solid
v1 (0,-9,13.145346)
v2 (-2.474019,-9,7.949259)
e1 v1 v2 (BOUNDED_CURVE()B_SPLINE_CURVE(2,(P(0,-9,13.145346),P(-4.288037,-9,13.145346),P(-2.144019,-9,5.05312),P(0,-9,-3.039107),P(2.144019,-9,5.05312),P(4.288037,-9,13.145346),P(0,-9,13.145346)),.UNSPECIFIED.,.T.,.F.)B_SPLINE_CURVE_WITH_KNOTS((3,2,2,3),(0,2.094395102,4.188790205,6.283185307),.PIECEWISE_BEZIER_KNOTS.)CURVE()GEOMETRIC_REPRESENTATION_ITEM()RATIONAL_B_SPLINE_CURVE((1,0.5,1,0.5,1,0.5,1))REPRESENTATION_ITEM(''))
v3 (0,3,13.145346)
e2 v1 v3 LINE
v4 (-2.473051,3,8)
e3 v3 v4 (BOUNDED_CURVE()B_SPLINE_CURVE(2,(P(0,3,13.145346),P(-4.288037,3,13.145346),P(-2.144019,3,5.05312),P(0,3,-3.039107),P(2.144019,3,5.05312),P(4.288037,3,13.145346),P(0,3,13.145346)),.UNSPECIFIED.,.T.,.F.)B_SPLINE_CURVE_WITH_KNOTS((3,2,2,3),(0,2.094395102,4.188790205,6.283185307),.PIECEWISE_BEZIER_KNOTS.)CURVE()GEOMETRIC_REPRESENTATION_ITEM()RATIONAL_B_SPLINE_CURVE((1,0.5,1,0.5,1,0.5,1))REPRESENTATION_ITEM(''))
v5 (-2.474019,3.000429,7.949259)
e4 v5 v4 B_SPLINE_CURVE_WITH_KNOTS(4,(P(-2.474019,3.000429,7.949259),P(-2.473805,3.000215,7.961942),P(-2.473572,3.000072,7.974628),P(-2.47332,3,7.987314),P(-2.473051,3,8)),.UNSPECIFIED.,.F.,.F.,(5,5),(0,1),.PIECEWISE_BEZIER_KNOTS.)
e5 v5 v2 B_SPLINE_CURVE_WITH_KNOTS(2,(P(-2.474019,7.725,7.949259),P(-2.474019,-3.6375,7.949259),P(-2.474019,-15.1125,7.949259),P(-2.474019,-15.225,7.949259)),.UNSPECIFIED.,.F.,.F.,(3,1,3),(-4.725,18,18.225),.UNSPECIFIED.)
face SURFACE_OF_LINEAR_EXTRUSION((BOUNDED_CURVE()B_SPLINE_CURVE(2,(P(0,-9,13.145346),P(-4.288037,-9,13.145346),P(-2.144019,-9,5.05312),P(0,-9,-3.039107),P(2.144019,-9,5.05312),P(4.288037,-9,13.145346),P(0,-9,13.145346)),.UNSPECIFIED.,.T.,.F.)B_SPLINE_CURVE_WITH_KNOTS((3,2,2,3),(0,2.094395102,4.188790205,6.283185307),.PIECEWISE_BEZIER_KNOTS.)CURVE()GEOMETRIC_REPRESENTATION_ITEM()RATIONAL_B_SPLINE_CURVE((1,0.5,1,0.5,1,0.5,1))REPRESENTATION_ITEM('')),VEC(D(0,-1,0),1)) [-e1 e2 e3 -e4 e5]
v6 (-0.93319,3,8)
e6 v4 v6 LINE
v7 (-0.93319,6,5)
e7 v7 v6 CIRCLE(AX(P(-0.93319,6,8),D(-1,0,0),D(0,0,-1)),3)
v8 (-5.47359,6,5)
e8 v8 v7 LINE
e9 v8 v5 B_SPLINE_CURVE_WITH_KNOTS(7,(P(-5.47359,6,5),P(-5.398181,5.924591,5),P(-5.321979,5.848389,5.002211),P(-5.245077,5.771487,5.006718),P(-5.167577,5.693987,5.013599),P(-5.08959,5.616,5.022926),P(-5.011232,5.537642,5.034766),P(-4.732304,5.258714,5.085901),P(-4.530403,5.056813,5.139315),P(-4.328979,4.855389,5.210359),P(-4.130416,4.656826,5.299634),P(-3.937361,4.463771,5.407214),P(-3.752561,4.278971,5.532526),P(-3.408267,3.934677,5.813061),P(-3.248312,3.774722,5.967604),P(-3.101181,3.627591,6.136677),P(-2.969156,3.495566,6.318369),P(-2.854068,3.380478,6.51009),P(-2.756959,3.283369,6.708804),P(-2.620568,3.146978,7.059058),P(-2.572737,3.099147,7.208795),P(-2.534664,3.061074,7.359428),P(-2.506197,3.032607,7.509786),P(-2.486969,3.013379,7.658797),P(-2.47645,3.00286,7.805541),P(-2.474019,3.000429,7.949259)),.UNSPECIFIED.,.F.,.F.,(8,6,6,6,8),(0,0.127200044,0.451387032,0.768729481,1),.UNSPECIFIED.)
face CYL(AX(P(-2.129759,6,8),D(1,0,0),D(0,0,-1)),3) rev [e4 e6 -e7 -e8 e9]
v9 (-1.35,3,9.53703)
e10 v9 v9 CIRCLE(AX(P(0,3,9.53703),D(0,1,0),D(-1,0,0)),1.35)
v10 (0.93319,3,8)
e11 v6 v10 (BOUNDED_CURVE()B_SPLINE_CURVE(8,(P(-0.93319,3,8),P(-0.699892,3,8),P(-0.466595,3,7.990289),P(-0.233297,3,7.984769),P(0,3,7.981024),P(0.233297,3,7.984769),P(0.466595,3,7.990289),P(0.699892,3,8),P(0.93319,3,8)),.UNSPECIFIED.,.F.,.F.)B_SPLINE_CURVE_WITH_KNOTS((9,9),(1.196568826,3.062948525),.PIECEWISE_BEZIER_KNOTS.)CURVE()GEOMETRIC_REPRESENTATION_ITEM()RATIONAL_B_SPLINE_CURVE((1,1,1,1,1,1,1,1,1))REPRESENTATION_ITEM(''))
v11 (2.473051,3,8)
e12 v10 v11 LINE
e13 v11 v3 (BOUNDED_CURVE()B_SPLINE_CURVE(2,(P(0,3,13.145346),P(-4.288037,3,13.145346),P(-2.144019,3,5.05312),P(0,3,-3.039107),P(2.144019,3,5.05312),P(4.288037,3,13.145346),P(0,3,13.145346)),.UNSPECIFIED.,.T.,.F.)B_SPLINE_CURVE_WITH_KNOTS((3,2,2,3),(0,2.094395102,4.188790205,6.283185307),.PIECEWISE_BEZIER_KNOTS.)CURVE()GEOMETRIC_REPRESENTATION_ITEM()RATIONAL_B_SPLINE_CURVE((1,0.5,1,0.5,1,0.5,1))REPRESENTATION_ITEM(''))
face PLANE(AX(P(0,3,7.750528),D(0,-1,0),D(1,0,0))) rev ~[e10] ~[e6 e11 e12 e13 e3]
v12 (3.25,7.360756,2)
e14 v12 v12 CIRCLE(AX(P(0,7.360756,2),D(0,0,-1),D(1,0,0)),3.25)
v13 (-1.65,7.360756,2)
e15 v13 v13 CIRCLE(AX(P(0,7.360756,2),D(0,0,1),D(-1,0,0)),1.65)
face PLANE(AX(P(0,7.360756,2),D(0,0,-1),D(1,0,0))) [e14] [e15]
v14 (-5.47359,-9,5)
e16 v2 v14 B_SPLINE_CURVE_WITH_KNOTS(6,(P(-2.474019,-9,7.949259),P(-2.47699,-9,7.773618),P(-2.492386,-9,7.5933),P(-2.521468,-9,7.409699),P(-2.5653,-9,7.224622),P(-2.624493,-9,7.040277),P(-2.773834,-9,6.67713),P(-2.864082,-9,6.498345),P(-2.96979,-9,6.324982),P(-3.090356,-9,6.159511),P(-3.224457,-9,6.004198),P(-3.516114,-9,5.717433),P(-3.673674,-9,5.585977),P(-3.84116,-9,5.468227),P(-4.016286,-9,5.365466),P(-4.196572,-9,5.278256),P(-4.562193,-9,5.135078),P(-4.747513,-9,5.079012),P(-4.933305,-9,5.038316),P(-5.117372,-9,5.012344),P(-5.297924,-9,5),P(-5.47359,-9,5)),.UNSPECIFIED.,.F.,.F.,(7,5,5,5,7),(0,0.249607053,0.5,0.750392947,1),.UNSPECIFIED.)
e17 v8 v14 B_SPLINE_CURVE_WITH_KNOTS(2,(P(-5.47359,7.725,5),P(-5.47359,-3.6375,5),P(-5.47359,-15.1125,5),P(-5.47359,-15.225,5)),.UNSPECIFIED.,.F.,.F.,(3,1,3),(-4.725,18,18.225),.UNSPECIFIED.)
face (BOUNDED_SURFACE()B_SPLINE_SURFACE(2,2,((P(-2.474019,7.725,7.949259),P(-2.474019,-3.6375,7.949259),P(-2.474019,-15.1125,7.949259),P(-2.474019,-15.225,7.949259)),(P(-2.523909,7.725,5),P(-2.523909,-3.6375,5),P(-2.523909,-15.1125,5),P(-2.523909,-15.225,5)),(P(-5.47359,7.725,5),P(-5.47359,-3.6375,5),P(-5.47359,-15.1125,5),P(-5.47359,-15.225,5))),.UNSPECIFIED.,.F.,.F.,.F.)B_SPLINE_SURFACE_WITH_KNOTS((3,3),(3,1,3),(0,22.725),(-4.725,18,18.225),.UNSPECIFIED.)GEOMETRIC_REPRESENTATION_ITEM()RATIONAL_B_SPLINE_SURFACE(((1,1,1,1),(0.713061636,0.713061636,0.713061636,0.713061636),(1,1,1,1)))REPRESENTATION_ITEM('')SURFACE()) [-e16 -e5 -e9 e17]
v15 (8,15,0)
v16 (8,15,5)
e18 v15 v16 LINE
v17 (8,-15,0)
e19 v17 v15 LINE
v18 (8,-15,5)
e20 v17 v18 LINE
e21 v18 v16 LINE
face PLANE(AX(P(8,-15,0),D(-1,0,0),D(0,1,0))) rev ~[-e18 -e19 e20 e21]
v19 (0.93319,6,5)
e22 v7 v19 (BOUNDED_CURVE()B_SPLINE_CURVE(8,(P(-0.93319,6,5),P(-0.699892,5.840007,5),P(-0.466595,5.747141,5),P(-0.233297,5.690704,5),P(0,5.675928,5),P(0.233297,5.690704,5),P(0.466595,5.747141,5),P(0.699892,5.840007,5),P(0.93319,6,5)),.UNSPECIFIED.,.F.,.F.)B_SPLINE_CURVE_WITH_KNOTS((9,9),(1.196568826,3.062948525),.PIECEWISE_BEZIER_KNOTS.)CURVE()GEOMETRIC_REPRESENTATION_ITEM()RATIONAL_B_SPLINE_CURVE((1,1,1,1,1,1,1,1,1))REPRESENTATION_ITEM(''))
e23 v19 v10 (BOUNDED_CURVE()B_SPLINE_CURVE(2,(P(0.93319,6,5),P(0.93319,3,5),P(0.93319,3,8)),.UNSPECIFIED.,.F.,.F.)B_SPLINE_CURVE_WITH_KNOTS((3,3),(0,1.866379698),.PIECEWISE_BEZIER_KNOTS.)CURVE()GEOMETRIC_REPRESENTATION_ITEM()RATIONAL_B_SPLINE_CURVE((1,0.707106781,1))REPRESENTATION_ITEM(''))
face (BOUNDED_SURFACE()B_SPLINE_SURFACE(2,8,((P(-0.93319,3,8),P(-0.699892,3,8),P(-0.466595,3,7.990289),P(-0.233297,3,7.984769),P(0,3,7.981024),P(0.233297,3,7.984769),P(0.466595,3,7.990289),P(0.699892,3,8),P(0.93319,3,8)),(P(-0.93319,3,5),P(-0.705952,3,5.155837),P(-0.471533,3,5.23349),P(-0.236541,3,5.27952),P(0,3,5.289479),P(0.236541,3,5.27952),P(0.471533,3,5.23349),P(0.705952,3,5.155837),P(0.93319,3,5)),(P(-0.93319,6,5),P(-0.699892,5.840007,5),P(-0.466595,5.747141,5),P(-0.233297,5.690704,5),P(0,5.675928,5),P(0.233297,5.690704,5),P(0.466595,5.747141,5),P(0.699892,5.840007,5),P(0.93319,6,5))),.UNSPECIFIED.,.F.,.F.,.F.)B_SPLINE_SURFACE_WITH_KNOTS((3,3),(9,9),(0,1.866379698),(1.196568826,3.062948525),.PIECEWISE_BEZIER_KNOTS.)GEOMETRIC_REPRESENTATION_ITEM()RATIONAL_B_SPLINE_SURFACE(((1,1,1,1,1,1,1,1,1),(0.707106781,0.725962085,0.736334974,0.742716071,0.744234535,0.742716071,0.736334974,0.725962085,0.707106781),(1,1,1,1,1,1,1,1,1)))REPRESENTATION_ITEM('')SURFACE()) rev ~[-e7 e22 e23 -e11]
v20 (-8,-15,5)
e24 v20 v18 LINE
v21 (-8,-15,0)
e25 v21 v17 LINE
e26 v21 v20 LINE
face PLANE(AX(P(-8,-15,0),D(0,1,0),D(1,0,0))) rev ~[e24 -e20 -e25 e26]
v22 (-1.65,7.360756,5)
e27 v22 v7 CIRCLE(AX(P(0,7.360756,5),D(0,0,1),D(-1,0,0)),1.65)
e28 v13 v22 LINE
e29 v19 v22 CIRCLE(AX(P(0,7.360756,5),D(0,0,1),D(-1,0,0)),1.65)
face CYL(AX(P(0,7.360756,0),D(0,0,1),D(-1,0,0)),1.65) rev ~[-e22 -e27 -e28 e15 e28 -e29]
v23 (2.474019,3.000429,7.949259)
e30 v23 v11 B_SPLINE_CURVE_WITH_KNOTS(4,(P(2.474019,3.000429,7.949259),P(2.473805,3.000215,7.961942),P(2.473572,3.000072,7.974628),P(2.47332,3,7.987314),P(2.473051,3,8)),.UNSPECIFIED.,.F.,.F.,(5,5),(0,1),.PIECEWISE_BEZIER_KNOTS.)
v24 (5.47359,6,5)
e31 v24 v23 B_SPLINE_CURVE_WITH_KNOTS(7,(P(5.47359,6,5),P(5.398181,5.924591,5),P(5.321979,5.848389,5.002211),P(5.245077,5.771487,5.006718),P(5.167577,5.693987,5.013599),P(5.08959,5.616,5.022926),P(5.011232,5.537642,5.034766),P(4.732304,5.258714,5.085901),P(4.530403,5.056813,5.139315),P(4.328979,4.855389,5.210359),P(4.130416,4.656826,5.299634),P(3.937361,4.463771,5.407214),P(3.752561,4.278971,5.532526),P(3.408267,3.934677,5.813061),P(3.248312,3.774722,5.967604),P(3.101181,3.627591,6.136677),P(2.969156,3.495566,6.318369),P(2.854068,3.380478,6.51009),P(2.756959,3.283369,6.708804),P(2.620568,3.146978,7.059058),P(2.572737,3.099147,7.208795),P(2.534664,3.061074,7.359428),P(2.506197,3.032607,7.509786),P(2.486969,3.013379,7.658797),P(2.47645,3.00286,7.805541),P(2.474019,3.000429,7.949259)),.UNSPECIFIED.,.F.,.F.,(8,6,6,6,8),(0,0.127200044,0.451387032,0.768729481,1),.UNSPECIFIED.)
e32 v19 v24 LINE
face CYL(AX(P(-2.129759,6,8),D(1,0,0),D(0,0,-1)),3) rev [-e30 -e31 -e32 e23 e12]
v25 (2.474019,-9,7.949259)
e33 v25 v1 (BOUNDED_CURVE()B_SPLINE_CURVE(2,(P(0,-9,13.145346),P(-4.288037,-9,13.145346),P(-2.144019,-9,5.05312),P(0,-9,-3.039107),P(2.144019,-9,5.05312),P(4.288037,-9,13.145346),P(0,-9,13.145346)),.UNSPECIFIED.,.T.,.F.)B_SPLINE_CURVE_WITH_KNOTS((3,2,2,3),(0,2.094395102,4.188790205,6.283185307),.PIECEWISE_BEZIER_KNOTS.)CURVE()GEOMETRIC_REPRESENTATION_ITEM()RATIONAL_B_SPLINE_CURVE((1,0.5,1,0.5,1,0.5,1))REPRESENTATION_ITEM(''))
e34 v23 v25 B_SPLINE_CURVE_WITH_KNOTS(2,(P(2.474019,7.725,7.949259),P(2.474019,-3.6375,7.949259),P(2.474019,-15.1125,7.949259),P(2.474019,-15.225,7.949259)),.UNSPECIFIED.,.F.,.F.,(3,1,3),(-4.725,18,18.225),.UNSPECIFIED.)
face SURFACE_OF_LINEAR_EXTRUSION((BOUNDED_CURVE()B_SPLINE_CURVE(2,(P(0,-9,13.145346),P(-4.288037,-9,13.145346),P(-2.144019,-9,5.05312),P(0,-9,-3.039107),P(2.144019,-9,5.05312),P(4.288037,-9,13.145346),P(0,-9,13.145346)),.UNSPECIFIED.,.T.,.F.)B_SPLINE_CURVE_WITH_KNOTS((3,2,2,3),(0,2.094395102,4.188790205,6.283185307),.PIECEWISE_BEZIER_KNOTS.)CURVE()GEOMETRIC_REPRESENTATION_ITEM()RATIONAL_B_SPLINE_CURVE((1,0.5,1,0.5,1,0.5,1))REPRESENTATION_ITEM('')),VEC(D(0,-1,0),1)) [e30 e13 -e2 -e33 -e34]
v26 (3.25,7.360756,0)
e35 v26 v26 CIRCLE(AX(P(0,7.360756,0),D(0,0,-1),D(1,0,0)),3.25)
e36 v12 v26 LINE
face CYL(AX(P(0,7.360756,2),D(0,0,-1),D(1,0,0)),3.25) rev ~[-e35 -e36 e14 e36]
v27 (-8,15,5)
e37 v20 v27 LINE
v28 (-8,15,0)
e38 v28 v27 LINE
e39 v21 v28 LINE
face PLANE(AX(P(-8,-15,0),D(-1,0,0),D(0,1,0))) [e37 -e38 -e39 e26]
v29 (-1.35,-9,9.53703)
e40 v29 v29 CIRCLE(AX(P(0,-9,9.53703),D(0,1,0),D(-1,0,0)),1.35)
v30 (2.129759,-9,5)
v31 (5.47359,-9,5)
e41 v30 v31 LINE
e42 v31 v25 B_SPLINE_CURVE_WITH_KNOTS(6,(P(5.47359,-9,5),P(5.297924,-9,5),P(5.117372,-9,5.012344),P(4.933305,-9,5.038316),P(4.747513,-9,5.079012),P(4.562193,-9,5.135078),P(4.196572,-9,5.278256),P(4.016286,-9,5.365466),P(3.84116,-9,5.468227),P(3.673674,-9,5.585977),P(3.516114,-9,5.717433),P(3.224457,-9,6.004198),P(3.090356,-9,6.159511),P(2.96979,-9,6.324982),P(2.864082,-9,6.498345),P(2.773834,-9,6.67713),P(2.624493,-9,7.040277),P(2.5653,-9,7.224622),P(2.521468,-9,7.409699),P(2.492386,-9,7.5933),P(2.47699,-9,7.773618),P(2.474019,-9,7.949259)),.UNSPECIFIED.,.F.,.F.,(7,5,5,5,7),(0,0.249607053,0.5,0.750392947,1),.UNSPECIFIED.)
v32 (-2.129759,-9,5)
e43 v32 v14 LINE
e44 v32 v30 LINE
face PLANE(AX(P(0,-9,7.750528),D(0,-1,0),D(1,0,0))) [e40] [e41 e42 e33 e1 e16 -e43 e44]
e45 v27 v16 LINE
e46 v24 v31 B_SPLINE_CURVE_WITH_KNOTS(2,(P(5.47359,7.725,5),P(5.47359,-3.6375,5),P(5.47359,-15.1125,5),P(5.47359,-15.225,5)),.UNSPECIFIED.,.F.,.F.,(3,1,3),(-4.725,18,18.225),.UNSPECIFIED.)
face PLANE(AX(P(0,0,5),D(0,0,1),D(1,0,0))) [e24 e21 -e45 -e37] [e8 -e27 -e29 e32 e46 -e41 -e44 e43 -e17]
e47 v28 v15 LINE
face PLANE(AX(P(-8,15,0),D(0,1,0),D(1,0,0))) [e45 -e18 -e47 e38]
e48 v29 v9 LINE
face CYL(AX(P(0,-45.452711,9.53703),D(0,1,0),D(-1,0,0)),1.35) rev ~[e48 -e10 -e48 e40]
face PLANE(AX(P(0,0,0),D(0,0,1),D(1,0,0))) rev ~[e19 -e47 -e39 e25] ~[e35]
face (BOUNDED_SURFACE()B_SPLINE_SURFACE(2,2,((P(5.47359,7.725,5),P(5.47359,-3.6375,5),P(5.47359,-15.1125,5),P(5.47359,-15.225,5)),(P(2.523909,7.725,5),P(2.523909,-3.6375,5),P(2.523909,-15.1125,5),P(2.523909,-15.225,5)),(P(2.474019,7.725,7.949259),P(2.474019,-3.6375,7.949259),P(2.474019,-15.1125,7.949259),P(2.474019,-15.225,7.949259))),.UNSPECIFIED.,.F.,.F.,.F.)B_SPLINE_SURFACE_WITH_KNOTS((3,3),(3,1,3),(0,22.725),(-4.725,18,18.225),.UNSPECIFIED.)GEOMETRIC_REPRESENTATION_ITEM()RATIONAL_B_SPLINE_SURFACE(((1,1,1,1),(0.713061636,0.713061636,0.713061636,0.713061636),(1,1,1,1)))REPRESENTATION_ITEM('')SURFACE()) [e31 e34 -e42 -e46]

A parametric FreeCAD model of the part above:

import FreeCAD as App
import Part
import Sketcher

V = App.Vector


def edges_at(feature, points):
    """Names of the edges that pass closest to the given points."""
    edges = feature.Shape.Edges
    near = lambda p: min(range(len(edges)), key=lambda i: edges[i].distToShape(Part.Vertex(*p))[0])
    return sorted({f"Edge{near(p) + 1}" for p in points})

doc = App.newDocument("Part")
body = doc.addObject("PartDesign::Body", "Body")

# Sketch on XY plane
sketch1 = body.newObject("Sketcher::SketchObject", "Sketch")
sketch1.AttachmentSupport = (doc.getObject("XY_Plane"), [""])
sketch1.MapMode = "FlatFace"
sketch1.addGeometry([
    Part.LineSegment(V(-8, 15, 0), V(-8, -15, 0)),
    Part.LineSegment(V(-8, -15, 0), V(8, -15, 0)),
    Part.LineSegment(V(8, -15, 0), V(8, 15, 0)),
    Part.LineSegment(V(8, 15, 0), V(-8, 15, 0)),
], False)
sketch1.addConstraint([
    Sketcher.Constraint("Coincident", 0, 2, 1, 1),
    Sketcher.Constraint("Coincident", 1, 2, 2, 1),
    Sketcher.Constraint("Coincident", 2, 2, 3, 1),
    Sketcher.Constraint("Coincident", 3, 2, 0, 1),
    Sketcher.Constraint("Vertical", 0),
    Sketcher.Constraint("Horizontal", 1),
    Sketcher.Constraint("Vertical", 2),
    Sketcher.Constraint("Horizontal", 3),
    Sketcher.Constraint("Symmetric", 0, 2, 2, 2, -1, 1),
    Sketcher.Constraint("DistanceX", 1, 1, 1, 2, 16.0),
    Sketcher.Constraint("DistanceY", 0, 2, 0, 1, 30.0),
])
pad1 = body.newObject("PartDesign::Pad", "Pad")
pad1.Profile = sketch1
pad1.Length = 5

# Sketch on XZ plane
sketch2 = body.newObject("Sketcher::SketchObject", "Sketch001")
sketch2.AttachmentSupport = (doc.getObject("XZ_Plane"), [""])
sketch2.MapMode = "FlatFace"
sketch2.AttachmentOffset = App.Placement(V(0, 0, 9), App.Rotation())
sketch2.addGeometry(Part.BSplineCurve([V(0, 13.145346, 0), V(-4.288037, 13.145346, 0), V(-2.144019, 5.05312, 0), V(0, -3.039107, 0), V(2.144019, 5.05312, 0), V(4.288037, 13.145346, 0), V(0, 13.145346, 0)], [3, 2, 2, 3], [0, 2.094395102, 4.188790205, 6.283185307], False, 2, [1, 0.5, 1, 0.5, 1, 0.5, 1], False), False)
sketch2.addConstraint(Sketcher.Constraint("Block", 0))
pad2 = body.newObject("PartDesign::Pad", "Pad001")
pad2.Profile = sketch2
pad2.Length = 12
pad2.Reversed = True

# Sketch on XZ plane
sketch3 = body.newObject("Sketcher::SketchObject", "Sketch002")
sketch3.AttachmentSupport = (doc.getObject("XZ_Plane"), [""])
sketch3.MapMode = "FlatFace"
sketch3.AttachmentOffset = App.Placement(V(0, 0, 9), App.Rotation())
sketch3.addGeometry(Part.Circle(V(0, 9.5, 0), V(0, 0, 1), 1.4), False)
sketch3.addConstraint([
    Sketcher.Constraint("PointOnObject", 0, 3, -2),
    Sketcher.Constraint("Diameter", 0, 2.7),
    Sketcher.Constraint("DistanceY", -1, 1, 0, 3, 9.53703),
])
doc.recompute()
hole = body.newObject("PartDesign::Hole", "Hole")
hole.Profile = sketch3
hole.ThreadType = "None"
hole.Diameter = 2.7
hole.DepthType = "ThroughAll"

# Sketch on XY plane
sketch4 = body.newObject("Sketcher::SketchObject", "Sketch003")
sketch4.AttachmentSupport = (doc.getObject("XY_Plane"), [""])
sketch4.MapMode = "FlatFace"
sketch4.addGeometry(Part.Circle(V(0, 7.4, 0), V(0, 0, 1), 1.6), False)
sketch4.addConstraint([
    Sketcher.Constraint("PointOnObject", 0, 3, -2),
    Sketcher.Constraint("Diameter", 0, 3.3),
    Sketcher.Constraint("DistanceY", -1, 1, 0, 3, 7.360756),
])
doc.recompute()
hole2 = body.newObject("PartDesign::Hole", "Hole001")
hole2.Profile = sketch4
hole2.ThreadType = "None"
hole2.Diameter = 3.3
hole2.DepthType = "ThroughAll"
hole2.HoleCutType = "Counterbore"
hole2.HoleCutDiameter = 6.5
hole2.HoleCutDepth = 2
hole2.Reversed = True
doc.recompute()

fillet = body.newObject("PartDesign::Fillet", "Fillet")
fillet.Base = (hole2, edges_at(hole2, [(-2.13, -3, 5), (2.13, -3, 5), (0, 3, 5)]))
fillet.Radius = 3

doc.recompute()
